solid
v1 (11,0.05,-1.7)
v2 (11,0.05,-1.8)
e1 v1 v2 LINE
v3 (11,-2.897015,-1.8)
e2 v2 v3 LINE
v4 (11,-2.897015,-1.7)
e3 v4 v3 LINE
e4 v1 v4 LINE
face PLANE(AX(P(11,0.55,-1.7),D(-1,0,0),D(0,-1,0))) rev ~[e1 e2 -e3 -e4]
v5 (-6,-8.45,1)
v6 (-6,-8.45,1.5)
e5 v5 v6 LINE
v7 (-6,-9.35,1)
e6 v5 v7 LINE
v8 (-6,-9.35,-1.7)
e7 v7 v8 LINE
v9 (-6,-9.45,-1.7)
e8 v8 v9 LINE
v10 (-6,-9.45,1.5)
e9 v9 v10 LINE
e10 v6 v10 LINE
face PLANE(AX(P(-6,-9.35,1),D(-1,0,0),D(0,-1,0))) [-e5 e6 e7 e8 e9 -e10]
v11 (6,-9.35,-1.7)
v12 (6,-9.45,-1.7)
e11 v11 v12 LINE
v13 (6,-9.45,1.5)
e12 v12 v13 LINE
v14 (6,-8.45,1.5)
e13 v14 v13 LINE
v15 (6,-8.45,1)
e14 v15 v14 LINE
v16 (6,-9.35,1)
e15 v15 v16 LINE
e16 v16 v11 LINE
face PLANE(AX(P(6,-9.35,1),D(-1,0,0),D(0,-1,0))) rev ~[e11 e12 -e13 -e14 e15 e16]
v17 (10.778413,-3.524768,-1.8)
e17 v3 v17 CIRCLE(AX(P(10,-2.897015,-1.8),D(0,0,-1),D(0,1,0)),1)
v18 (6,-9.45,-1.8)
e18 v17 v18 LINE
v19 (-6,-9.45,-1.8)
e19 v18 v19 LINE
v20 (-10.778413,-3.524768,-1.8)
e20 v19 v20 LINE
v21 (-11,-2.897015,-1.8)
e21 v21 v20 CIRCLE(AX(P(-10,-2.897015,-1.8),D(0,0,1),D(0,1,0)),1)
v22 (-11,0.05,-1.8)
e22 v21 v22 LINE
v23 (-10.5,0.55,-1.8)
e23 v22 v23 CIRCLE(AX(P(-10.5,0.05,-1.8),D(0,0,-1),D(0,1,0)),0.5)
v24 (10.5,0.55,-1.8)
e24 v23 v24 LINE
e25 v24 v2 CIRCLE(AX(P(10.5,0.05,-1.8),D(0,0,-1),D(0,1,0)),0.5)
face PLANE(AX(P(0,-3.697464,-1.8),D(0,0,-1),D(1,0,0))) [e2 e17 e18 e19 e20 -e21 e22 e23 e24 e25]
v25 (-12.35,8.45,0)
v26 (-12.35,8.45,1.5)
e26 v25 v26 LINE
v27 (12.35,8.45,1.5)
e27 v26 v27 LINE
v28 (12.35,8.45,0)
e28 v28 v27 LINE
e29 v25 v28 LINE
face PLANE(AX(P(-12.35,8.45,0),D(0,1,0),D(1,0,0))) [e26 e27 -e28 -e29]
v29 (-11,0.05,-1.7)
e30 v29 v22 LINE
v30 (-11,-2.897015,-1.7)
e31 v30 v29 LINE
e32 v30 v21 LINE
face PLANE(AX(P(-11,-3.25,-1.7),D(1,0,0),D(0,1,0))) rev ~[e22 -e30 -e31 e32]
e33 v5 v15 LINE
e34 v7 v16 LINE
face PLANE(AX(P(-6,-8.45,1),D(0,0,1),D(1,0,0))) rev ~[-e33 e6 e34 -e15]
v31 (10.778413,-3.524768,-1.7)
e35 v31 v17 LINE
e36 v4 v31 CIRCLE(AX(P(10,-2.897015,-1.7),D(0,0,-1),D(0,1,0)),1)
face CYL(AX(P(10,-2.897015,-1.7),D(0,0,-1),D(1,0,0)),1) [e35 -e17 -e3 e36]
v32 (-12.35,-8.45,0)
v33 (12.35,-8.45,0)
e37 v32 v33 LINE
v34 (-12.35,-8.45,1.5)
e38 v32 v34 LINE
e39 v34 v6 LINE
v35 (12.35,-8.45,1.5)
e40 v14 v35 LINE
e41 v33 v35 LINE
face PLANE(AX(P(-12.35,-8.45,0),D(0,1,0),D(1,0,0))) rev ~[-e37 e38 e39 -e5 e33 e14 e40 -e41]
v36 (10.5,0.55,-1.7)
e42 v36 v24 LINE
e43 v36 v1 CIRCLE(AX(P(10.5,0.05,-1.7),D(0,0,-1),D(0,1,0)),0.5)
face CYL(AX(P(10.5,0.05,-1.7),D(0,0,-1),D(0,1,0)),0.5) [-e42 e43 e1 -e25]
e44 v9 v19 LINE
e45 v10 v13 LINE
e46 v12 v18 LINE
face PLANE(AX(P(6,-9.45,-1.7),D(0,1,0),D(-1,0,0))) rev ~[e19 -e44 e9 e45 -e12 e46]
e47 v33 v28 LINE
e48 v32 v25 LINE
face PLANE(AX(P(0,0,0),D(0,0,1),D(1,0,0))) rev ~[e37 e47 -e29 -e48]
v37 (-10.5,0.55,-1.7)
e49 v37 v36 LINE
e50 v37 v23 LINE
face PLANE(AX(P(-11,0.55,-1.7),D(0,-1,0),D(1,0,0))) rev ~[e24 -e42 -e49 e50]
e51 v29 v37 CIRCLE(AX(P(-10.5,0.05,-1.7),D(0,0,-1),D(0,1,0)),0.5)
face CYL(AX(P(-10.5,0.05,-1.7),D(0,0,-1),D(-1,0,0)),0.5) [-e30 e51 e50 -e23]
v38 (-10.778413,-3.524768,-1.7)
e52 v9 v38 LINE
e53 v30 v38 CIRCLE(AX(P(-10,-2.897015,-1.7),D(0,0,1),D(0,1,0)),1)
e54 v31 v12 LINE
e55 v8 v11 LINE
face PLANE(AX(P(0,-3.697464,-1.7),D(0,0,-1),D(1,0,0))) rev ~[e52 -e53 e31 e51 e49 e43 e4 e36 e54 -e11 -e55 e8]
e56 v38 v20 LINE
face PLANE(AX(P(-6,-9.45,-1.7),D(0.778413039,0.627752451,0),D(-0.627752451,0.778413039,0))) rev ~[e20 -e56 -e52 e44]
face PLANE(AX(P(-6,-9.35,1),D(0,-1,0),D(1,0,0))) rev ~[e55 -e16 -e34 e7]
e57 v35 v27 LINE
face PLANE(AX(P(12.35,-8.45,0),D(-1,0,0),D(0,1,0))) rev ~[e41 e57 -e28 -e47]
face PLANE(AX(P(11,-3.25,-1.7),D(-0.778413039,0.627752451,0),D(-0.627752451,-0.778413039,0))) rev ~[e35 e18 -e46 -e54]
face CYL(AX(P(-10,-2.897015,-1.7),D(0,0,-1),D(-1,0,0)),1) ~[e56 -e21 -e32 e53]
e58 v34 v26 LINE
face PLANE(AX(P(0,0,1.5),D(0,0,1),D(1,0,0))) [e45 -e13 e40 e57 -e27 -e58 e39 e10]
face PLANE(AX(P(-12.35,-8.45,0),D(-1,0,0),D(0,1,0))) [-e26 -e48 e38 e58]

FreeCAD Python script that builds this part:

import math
import FreeCAD as App
import Part
import Sketcher
from FreeCAD import Vector
Q = App.Units.Quantity


def edges_at(feature, points):
    """Names of the edges that pass closest to the given points."""
    edges = feature.Shape.Edges
    near = lambda p: min(range(len(edges)), key=lambda i: edges[i].distToShape(Part.Vertex(*p))[0])
    return sorted({f"Edge{near(p) + 1}" for p in points})

doc = App.newDocument("Part")
params = doc.addObject("Spreadsheet::Sheet", "Params")
for row, (alias, value) in enumerate([
    ("sketch1_width", "24.7 mm"),
    ("sketch1_height", "16.9 mm"),
    ("pad1_length", "1.5 mm"),
    ("sketch2_radius", "0.5 mm"),
    ("sketch2_width", "9.13 mm"),
    ("pad2_length", "1 mm"),
    ("sketch3_width", "12 mm"),
    ("sketch3_height", "0.5 mm"),
    ("pad3_length", "1 mm"),
    ("sketch4_width", "12 mm"),
    ("sketch4_height", "0.1 mm"),
    ("pad4_length", "2.7 mm"),
    ("sketch5_width", "22 mm"),
    ("sketch5_width2", "12 mm"),
    ("sketch5_height", "3.8 mm"),
    ("pad5_length", "0.1 mm"),
    ("fillet_radius", "0.5 mm"),
    ("fillet2_radius", "1 mm"),
    ("fillet3_radius", "1 mm"),
], start=1):
    params.set(f"A{row}", alias)
    params.set(f"B{row}", "=" + value)
    params.setAlias(f"B{row}", alias)

body = doc.addObject("PartDesign::Body", "Body")

# Sketch on XY plane
sketch1 = body.newObject("Sketcher::SketchObject", "Sketch")
sketch1.AttachmentSupport = (doc.getObject("XY_Plane"), [""])
sketch1.MapMode = "FlatFace"
sketch1.addGeometry([
    Part.LineSegment(Vector(-12, 8, 0), Vector(-12, -8, 0)),
    Part.LineSegment(Vector(-12, -8, 0), Vector(12, -8, 0)),
    Part.LineSegment(Vector(12, -8, 0), Vector(12, 8, 0)),
    Part.LineSegment(Vector(12, 8, 0), Vector(-12, 8, 0)),
], False)
sketch1.addConstraint([
    Sketcher.Constraint("Coincident", 0, 2, 1, 1),
    Sketcher.Constraint("Coincident", 1, 2, 2, 1),
    Sketcher.Constraint("Coincident", 2, 2, 3, 1),
    Sketcher.Constraint("Coincident", 3, 2, 0, 1),
    Sketcher.Constraint("Vertical", 0),
    Sketcher.Constraint("Horizontal", 1),
    Sketcher.Constraint("Vertical", 2),
    Sketcher.Constraint("Horizontal", 3),
    Sketcher.Constraint("Symmetric", 0, 2, 2, 2, -1, 1),
    Sketcher.Constraint("DistanceX", 1, 1, 1, 2, Q("24.7 mm")),
    Sketcher.Constraint("DistanceY", 0, 2, 0, 1, Q("16.9 mm")),
])
sketch1.setExpression("Constraints[9]", "Params.sketch1_width")
sketch1.setExpression("Constraints[10]", "Params.sketch1_height")
pad1 = body.newObject("PartDesign::Pad", "Pad")
pad1.Profile = sketch1
pad1.setExpression("Length", "Params.pad1_length")

# Sketch on XY plane
sketch2 = body.newObject("Sketcher::SketchObject", "Sketch001")
sketch2.AttachmentSupport = (doc.getObject("XY_Plane"), [""])
sketch2.MapMode = "FlatFace"
sketch2.AttachmentOffset = App.Placement(Vector(0, 0, 1.5), App.Rotation())
sketch2.addGeometry([
    Part.LineSegment(Vector(-10.9, 6.4, 0), Vector(-10.9, -4.4, 0)),  # 0
    Part.LineSegment(Vector(-10.9, -4.4, 0), Vector(10.9, -4.4, 0)),  # 1
    Part.LineSegment(Vector(10.9, -4.4, 0), Vector(10.9, 6.4, 0)),  # 2
    Part.LineSegment(Vector(10.9, 6.4, 0), Vector(-10.9, 6.4, 0)),  # 3
    Part.ArcOfCircle(Part.Circle(Vector(-4.6, -6.5, 0), Vector(0, 0, 1), 0.5), math.radians(90), math.radians(270)),  # 4
    Part.LineSegment(Vector(-4.6, -7, 0), Vector(4.6, -7, 0)),  # 5
    Part.ArcOfCircle(Part.Circle(Vector(4.6, -6.5, 0), Vector(0, 0, 1), 0.5), math.radians(-90), math.radians(90)),  # 6
    Part.LineSegment(Vector(4.6, -6, 0), Vector(-4.6, -6, 0)),  # 7
], False)
sketch2.addConstraint([
    Sketcher.Constraint("Coincident", 0, 2, 1, 1),
    Sketcher.Constraint("Coincident", 1, 2, 2, 1),
    Sketcher.Constraint("Coincident", 2, 2, 3, 1),
    Sketcher.Constraint("Coincident", 3, 2, 0, 1),
    Sketcher.Constraint("Tangent", 4, 2, 5, 1),
    Sketcher.Constraint("Tangent", 5, 2, 6, 1),
    Sketcher.Constraint("Tangent", 6, 2, 7, 1),
    Sketcher.Constraint("Tangent", 7, 2, 4, 1),
    Sketcher.Constraint("Vertical", 0),
    Sketcher.Constraint("Horizontal", 1),
    Sketcher.Constraint("Vertical", 2),
    Sketcher.Constraint("Horizontal", 3),
    Sketcher.Constraint("Horizontal", 5),
    Sketcher.Constraint("Horizontal", 7),
    Sketcher.Constraint("Radius", 4, Q("0.5 mm")),
    Sketcher.Constraint("DistanceX", 5, 1, 5, 2, Q("9.13 mm")),
    Sketcher.Constraint("DistanceX", 1, 1, 1, 2, Q("21.744 mm")),
    Sketcher.Constraint("DistanceY", 0, 2, 0, 1, Q("10.864 mm")),
    Sketcher.Constraint("DistanceY", 4, 3, 0, 2, Q("2.08 mm")),
    Sketcher.Constraint("DistanceX", 4, 3, -1, 1, Q("4.565 mm")),
    Sketcher.Constraint("DistanceY", 4, 3, -1, 1, Q("6.512 mm")),
    Sketcher.Constraint("DistanceX", 0, 2, -1, 1, Q("10.872 mm")),
])
sketch2.setExpression("Constraints[14]", "Params.sketch2_radius")
sketch2.setExpression("Constraints[15]", "Params.sketch2_width")
pad2 = body.newObject("PartDesign::Pad", "Pad001")
pad2.Profile = sketch2
pad2.setExpression("Length", "Params.pad2_length")
pad2.Reversed = True

# Sketch on XZ plane
sketch3 = body.newObject("Sketcher::SketchObject", "Sketch002")
sketch3.AttachmentSupport = (doc.getObject("XZ_Plane"), [""])
sketch3.MapMode = "FlatFace"
sketch3.AttachmentOffset = App.Placement(Vector(0, 0, 8.45), App.Rotation())
sketch3.addGeometry([
    Part.LineSegment(Vector(-6, 1.5, 0), Vector(-6, 1, 0)),
    Part.LineSegment(Vector(-6, 1, 0), Vector(6, 1, 0)),
    Part.LineSegment(Vector(6, 1, 0), Vector(6, 1.5, 0)),
    Part.LineSegment(Vector(6, 1.5, 0), Vector(-6, 1.5, 0)),
], False)
sketch3.addConstraint([
    Sketcher.Constraint("Coincident", 0, 2, 1, 1),
    Sketcher.Constraint("Coincident", 1, 2, 2, 1),
    Sketcher.Constraint("Coincident", 2, 2, 3, 1),
    Sketcher.Constraint("Coincident", 3, 2, 0, 1),
    Sketcher.Constraint("Vertical", 0),
    Sketcher.Constraint("Horizontal", 1),
    Sketcher.Constraint("Vertical", 2),
    Sketcher.Constraint("Horizontal", 3),
    Sketcher.Constraint("DistanceX", 1, 1, 1, 2, Q("12 mm")),
    Sketcher.Constraint("DistanceY", 0, 2, 0, 1, Q("0.5 mm")),
    Sketcher.Constraint("DistanceX", 0, 2, -1, 1, Q("6 mm")),
    Sketcher.Constraint("DistanceY", -1, 1, 0, 2, Q("1 mm")),
])
sketch3.setExpression("Constraints[8]", "Params.sketch3_width")
sketch3.setExpression("Constraints[9]", "Params.sketch3_height")
pad3 = body.newObject("PartDesign::Pad", "Pad002")
pad3.Profile = sketch3
pad3.setExpression("Length", "Params.pad3_length")

# Sketch on XY plane
sketch4 = body.newObject("Sketcher::SketchObject", "Sketch003")
sketch4.AttachmentSupport = (doc.getObject("XY_Plane"), [""])
sketch4.MapMode = "FlatFace"
sketch4.AttachmentOffset = App.Placement(Vector(0, 0, 1), App.Rotation())
sketch4.addGeometry([
    Part.LineSegment(Vector(-6, -9.45, 0), Vector(-6, -9.35, 0)),
    Part.LineSegment(Vector(-6, -9.35, 0), Vector(6, -9.35, 0)),
    Part.LineSegment(Vector(6, -9.35, 0), Vector(6, -9.45, 0)),
    Part.LineSegment(Vector(6, -9.45, 0), Vector(-6, -9.45, 0)),
], False)
sketch4.addConstraint([
    Sketcher.Constraint("Coincident", 0, 2, 1, 1),
    Sketcher.Constraint("Coincident", 1, 2, 2, 1),
    Sketcher.Constraint("Coincident", 2, 2, 3, 1),
    Sketcher.Constraint("Coincident", 3, 2, 0, 1),
    Sketcher.Constraint("Vertical", 0),
    Sketcher.Constraint("Horizontal", 1),
    Sketcher.Constraint("Vertical", 2),
    Sketcher.Constraint("Horizontal", 3),
    Sketcher.Constraint("DistanceX", 1, 1, 1, 2, Q("12 mm")),
    Sketcher.Constraint("DistanceY", 0, 1, 0, 2, Q("0.1 mm")),
    Sketcher.Constraint("DistanceX", 0, 2, -1, 1, Q("6 mm")),
    Sketcher.Constraint("DistanceY", 0, 2, -1, 1, Q("9.35 mm")),
])
sketch4.setExpression("Constraints[8]", "Params.sketch4_width")
sketch4.setExpression("Constraints[9]", "Params.sketch4_height")
pad4 = body.newObject("PartDesign::Pad", "Pad003")
pad4.Profile = sketch4
pad4.setExpression("Length", "Params.pad4_length")
pad4.Reversed = True

# Sketch on XY plane
sketch5 = body.newObject("Sketcher::SketchObject", "Sketch004")
sketch5.AttachmentSupport = (doc.getObject("XY_Plane"), [""])
sketch5.MapMode = "FlatFace"
sketch5.AttachmentOffset = App.Placement(Vector(0, 0, -1.7), App.Rotation())
sketch5.addGeometry([
    Part.LineSegment(Vector(-6, -9.4, 0), Vector(-11, -3.2, 0)),  # 0
    Part.LineSegment(Vector(-11, -3.2, 0), Vector(-11, 0.6, 0)),  # 1
    Part.LineSegment(Vector(-11, 0.6, 0), Vector(11, 0.6, 0)),  # 2
    Part.LineSegment(Vector(11, 0.6, 0), Vector(11, -3.2, 0)),  # 3
    Part.LineSegment(Vector(11, -3.2, 0), Vector(6, -9.4, 0)),  # 4
    Part.LineSegment(Vector(6, -9.4, 0), Vector(-6, -9.4, 0)),  # 5
], False)
sketch5.addConstraint([
    Sketcher.Constraint("Coincident", 0, 2, 1, 1),
    Sketcher.Constraint("Coincident", 1, 2, 2, 1),
    Sketcher.Constraint("Coincident", 2, 2, 3, 1),
    Sketcher.Constraint("Coincident", 3, 2, 4, 1),
    Sketcher.Constraint("Coincident", 4, 2, 5, 1),
    Sketcher.Constraint("Coincident", 5, 2, 0, 1),
    Sketcher.Constraint("Vertical", 1),
    Sketcher.Constraint("Horizontal", 2),
    Sketcher.Constraint("Vertical", 3),
    Sketcher.Constraint("Horizontal", 5),
    Sketcher.Constraint("Symmetric", 0, 2, 3, 2, -2),
    Sketcher.Constraint("Equal", 0, 4),
    Sketcher.Constraint("DistanceX", 2, 1, 2, 2, Q("22 mm")),
    Sketcher.Constraint("DistanceX", 5, 2, 5, 1, Q("12 mm")),
    Sketcher.Constraint("DistanceY", 1, 1, 1, 2, Q("3.8 mm")),
    Sketcher.Constraint("DistanceY", 4, 2, 2, 2, Q("10 mm")),
    Sketcher.Constraint("DistanceY", 0, 2, -1, 1, Q("3.25 mm")),
])
sketch5.setExpression("Constraints[12]", "Params.sketch5_width")
sketch5.setExpression("Constraints[13]", "Params.sketch5_width2")
sketch5.setExpression("Constraints[14]", "Params.sketch5_height")
pad5 = body.newObject("PartDesign::Pad", "Pad004")
pad5.Profile = sketch5
pad5.setExpression("Length", "Params.pad5_length")
pad5.Reversed = True
doc.recompute()

fillet = body.newObject("PartDesign::Fillet", "Fillet")
fillet.Base = (pad5, edges_at(pad5, [(-11, 0.55, -1.75), (11, 0.55, -1.75)]))
fillet.setExpression("Radius", "Params.fillet_radius")
doc.recompute()

fillet2 = body.newObject("PartDesign::Fillet", "Fillet001")
fillet2.Base = (fillet, edges_at(fillet, [(-11, -3.25, -1.75)]))
fillet2.setExpression("Radius", "Params.fillet2_radius")
doc.recompute()

fillet3 = body.newObject("PartDesign::Fillet", "Fillet002")
fillet3.Base = (fillet2, edges_at(fillet2, [(11, -3.25, -1.75)]))
fillet3.setExpression("Radius", "Params.fillet3_radius")

doc.recompute()
